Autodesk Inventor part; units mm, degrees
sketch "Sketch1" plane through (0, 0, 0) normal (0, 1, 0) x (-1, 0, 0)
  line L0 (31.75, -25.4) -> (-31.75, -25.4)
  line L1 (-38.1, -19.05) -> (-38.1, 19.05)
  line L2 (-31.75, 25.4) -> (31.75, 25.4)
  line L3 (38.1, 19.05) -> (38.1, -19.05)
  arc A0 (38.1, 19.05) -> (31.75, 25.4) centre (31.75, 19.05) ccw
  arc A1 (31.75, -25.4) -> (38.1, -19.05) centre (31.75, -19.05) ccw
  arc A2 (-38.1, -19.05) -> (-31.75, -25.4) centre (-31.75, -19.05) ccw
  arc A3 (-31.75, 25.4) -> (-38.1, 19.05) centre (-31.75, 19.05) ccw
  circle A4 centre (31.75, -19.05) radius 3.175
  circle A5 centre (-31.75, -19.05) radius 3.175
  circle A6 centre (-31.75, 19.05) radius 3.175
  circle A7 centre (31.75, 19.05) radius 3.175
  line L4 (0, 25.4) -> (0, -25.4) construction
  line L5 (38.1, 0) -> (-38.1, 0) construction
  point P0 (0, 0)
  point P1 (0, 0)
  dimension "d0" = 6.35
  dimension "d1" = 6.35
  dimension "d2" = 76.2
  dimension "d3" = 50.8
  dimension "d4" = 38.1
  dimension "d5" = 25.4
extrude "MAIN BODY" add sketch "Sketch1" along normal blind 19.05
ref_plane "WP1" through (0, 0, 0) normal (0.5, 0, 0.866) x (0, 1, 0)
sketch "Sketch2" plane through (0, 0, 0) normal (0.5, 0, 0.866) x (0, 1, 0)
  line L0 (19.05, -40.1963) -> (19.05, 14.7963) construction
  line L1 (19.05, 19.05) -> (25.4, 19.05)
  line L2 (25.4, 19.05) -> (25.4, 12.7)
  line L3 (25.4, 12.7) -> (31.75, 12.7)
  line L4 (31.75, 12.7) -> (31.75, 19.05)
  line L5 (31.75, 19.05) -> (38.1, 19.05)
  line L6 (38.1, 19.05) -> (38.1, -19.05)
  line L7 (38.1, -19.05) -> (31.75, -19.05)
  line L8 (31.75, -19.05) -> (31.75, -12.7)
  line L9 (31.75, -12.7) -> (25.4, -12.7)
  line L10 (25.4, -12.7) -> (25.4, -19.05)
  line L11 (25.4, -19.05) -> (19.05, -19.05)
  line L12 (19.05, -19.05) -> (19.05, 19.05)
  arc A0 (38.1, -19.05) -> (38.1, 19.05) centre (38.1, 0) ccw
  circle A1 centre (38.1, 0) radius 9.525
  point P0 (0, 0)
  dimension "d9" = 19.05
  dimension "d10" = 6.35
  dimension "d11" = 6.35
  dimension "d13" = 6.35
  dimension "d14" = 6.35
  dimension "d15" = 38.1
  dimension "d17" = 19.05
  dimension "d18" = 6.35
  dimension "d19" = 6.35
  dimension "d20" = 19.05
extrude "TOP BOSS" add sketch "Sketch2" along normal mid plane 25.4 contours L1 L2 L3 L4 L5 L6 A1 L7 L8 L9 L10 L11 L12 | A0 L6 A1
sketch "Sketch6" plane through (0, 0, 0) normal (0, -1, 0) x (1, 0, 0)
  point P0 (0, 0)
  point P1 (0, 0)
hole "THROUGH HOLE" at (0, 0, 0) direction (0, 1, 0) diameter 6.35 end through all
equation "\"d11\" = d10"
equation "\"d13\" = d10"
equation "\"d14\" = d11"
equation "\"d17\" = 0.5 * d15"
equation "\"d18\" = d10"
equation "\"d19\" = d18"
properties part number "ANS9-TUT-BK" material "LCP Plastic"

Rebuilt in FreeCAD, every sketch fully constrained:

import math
import FreeCAD as App
import Part
import Sketcher
Q = App.Units.Quantity

doc = App.newDocument("Part")
params = doc.addObject("Spreadsheet::Sheet", "Params")
for row, (alias, value) in enumerate([
    ("sketch1_diameter", "0.25 in"),
    ("sketch1_radius", "0.25 in"),
    ("sketch1_height", "1.5 in"),
    ("pad1_length", "0.75 in"),
    ("sketch2_diameter", "0.75 in"),
    ("sketch2_radius", "0.75 in"),
    ("sketch2_width", "0.25 in"),
    ("pad2_length", "1 in"),
    ("sketch3_diameter", "0.25 in"),
    ("hole_diameter", "0.25 in"),
], start=1):
    params.set(f"A{row}", alias)
    params.set(f"B{row}", "=" + value)
    params.setAlias(f"B{row}", alias)

body = doc.addObject("PartDesign::Body", "Body")

sketch1 = doc.addObject("Sketcher::SketchObject", "Sketch")
body.addObject(sketch1)
sketch1.AttachmentSupport = (doc.XZ_Plane, [""])
sketch1.MapMode = "FlatFace"
sketch1.addGeometry(Part.LineSegment(App.Vector(31.75, -25.4, 0), App.Vector(-31.75, -25.4, 0)), False)
sketch1.addGeometry(Part.ArcOfCircle(Part.Circle(App.Vector(-31.75, -19.05, 0), App.Vector(0, 0, 1), 6.35), math.radians(180), math.radians(270)), False)
sketch1.addGeometry(Part.LineSegment(App.Vector(-38.1, -19.05, 0), App.Vector(-38.1, 19.05, 0)), False)
sketch1.addGeometry(Part.ArcOfCircle(Part.Circle(App.Vector(-31.75, 19.05, 0), App.Vector(0, 0, 1), 6.35), math.radians(90), math.radians(180)), False)
sketch1.addGeometry(Part.LineSegment(App.Vector(-31.75, 25.4, 0), App.Vector(31.75, 25.4, 0)), False)
sketch1.addGeometry(Part.ArcOfCircle(Part.Circle(App.Vector(31.75, 19.05, 0), App.Vector(0, 0, 1), 6.35), math.radians(0), math.radians(90)), False)
sketch1.addGeometry(Part.LineSegment(App.Vector(38.1, 19.05, 0), App.Vector(38.1, -19.05, 0)), False)
sketch1.addGeometry(Part.ArcOfCircle(Part.Circle(App.Vector(31.75, -19.05, 0), App.Vector(0, 0, 1), 6.35), math.radians(-90), math.radians(0)), False)
sketch1.addGeometry(Part.Circle(App.Vector(31.75, -19.05, 0), App.Vector(0, 0, 1), 3.175), False)
sketch1.addGeometry(Part.Circle(App.Vector(-31.75, -19.05, 0), App.Vector(0, 0, 1), 3.175), False)
sketch1.addGeometry(Part.Circle(App.Vector(31.75, 19.05, 0), App.Vector(0, 0, 1), 3.175), False)
sketch1.addGeometry(Part.Circle(App.Vector(-31.75, 19.05, 0), App.Vector(0, 0, 1), 3.175), False)
sketch1.addConstraint(Sketcher.Constraint("Tangent", 0, 2, 1, 2))
sketch1.addConstraint(Sketcher.Constraint("Tangent", 1, 1, 2, 1))
sketch1.addConstraint(Sketcher.Constraint("Tangent", 2, 2, 3, 2))
sketch1.addConstraint(Sketcher.Constraint("Tangent", 3, 1, 4, 1))
sketch1.addConstraint(Sketcher.Constraint("Tangent", 4, 2, 5, 2))
sketch1.addConstraint(Sketcher.Constraint("Tangent", 5, 1, 6, 1))
sketch1.addConstraint(Sketcher.Constraint("Tangent", 6, 2, 7, 2))
sketch1.addConstraint(Sketcher.Constraint("Tangent", 7, 1, 0, 1))
sketch1.addConstraint(Sketcher.Constraint("Horizontal", 0))
sketch1.addConstraint(Sketcher.Constraint("Vertical", 2))
sketch1.addConstraint(Sketcher.Constraint("Horizontal", 4))
sketch1.addConstraint(Sketcher.Constraint("Vertical", 6))
sketch1.addConstraint(Sketcher.Constraint("Coincident", 8, 3, 7, 3))
sketch1.addConstraint(Sketcher.Constraint("Coincident", 9, 3, 1, 3))
sketch1.addConstraint(Sketcher.Constraint("Coincident", 10, 3, 5, 3))
sketch1.addConstraint(Sketcher.Constraint("Coincident", 11, 3, 3, 3))
sketch1.addConstraint(Sketcher.Constraint("Equal", 1, 3))
sketch1.addConstraint(Sketcher.Constraint("Equal", 3, 5))
sketch1.addConstraint(Sketcher.Constraint("Equal", 5, 7))
sketch1.addConstraint(Sketcher.Constraint("Equal", 8, 9))
sketch1.addConstraint(Sketcher.Constraint("Equal", 9, 10))
sketch1.addConstraint(Sketcher.Constraint("Equal", 10, 11))
sketch1.addConstraint(Sketcher.Constraint("Symmetric", 1, 3, 5, 3, -1, 1))
sketch1.addConstraint(Sketcher.Constraint("Diameter", 8, Q("0.25 in")))
sketch1.addConstraint(Sketcher.Constraint("Radius", 1, Q("0.25 in")))
sketch1.addConstraint(Sketcher.Constraint("DistanceY", 2, 1, 2, 2, Q("1.5 in")))
sketch1.addConstraint(Sketcher.Constraint("DistanceX", 1, 1, -1, 1, Q("1.5 in")))
sketch1.setExpression("Constraints[23]", "Params.sketch1_diameter")
sketch1.setExpression("Constraints[24]", "Params.sketch1_radius")
sketch1.setExpression("Constraints[25]", "Params.sketch1_height")
pad1 = doc.addObject("PartDesign::Pad", "Pad")
body.addObject(pad1)
pad1.Profile = sketch1
pad1.setExpression("Length", "Params.pad1_length")
pad1.Reversed = True

sketch2 = doc.addObject("Sketcher::SketchObject", "Sketch001")
body.addObject(sketch2)
sketch2.Placement = App.Placement(App.Vector(0, 0, 0), App.Rotation(App.Vector(0, 1, 0), App.Vector(-0.866025404, 0, 0.5), App.Vector(0.5, 0, 0.866025404), "ZXY"))
sketch2.addGeometry(Part.LineSegment(App.Vector(25.4, 19.05, 0), App.Vector(19.05, 19.05, 0)), False)
sketch2.addGeometry(Part.LineSegment(App.Vector(19.05, 19.05, 0), App.Vector(19.05, -19.05, 0)), False)
sketch2.addGeometry(Part.LineSegment(App.Vector(19.05, -19.05, 0), App.Vector(25.4, -19.05, 0)), False)
sketch2.addGeometry(Part.LineSegment(App.Vector(25.4, -19.05, 0), App.Vector(25.4, -12.7, 0)), False)
sketch2.addGeometry(Part.LineSegment(App.Vector(25.4, -12.7, 0), App.Vector(31.75, -12.7, 0)), False)
sketch2.addGeometry(Part.LineSegment(App.Vector(31.75, -12.7, 0), App.Vector(31.75, -19.05, 0)), False)
sketch2.addGeometry(Part.LineSegment(App.Vector(31.75, -19.05, 0), App.Vector(38.1, -19.05, 0)), False)
sketch2.addGeometry(Part.ArcOfCircle(Part.Circle(App.Vector(38.1, 0, 0), App.Vector(0, 0, 1), 19.05), math.radians(-90), math.radians(90)), False)
sketch2.addGeometry(Part.LineSegment(App.Vector(38.1, 19.05, 0), App.Vector(31.75, 19.05, 0)), False)
sketch2.addGeometry(Part.LineSegment(App.Vector(31.75, 19.05, 0), App.Vector(31.75, 12.7, 0)), False)
sketch2.addGeometry(Part.LineSegment(App.Vector(31.75, 12.7, 0), App.Vector(25.4, 12.7, 0)), False)
sketch2.addGeometry(Part.LineSegment(App.Vector(25.4, 12.7, 0), App.Vector(25.4, 19.05, 0)), False)
sketch2.addGeometry(Part.Circle(App.Vector(38.1, 0, 0), App.Vector(0, 0, 1), 9.525), False)
sketch2.addConstraint(Sketcher.Constraint("Coincident", 0, 2, 1, 1))
sketch2.addConstraint(Sketcher.Constraint("Coincident", 1, 2, 2, 1))
sketch2.addConstraint(Sketcher.Constraint("Coincident", 2, 2, 3, 1))
sketch2.addConstraint(Sketcher.Constraint("Coincident", 3, 2, 4, 1))
sketch2.addConstraint(Sketcher.Constraint("Coincident", 4, 2, 5, 1))
sketch2.addConstraint(Sketcher.Constraint("Coincident", 5, 2, 6, 1))
sketch2.addConstraint(Sketcher.Constraint("Tangent", 6, 2, 7, 1))
sketch2.addConstraint(Sketcher.Constraint("Tangent", 7, 2, 8, 1))
sketch2.addConstraint(Sketcher.Constraint("Coincident", 8, 2, 9, 1))
sketch2.addConstraint(Sketcher.Constraint("Coincident", 9, 2, 10, 1))
sketch2.addConstraint(Sketcher.Constraint("Coincident", 10, 2, 11, 1))
sketch2.addConstraint(Sketcher.Constraint("Coincident", 11, 2, 0, 1))
sketch2.addConstraint(Sketcher.Constraint("Horizontal", 0))
sketch2.addConstraint(Sketcher.Constraint("Vertical", 1))
sketch2.addConstraint(Sketcher.Constraint("Horizontal", 2))
sketch2.addConstraint(Sketcher.Constraint("Vertical", 3))
sketch2.addConstraint(Sketcher.Constraint("Horizontal", 4))
sketch2.addConstraint(Sketcher.Constraint("Vertical", 5))
sketch2.addConstraint(Sketcher.Constraint("Horizontal", 6))
sketch2.addConstraint(Sketcher.Constraint("Horizontal", 8))
sketch2.addConstraint(Sketcher.Constraint("Vertical", 9))
sketch2.addConstraint(Sketcher.Constraint("Horizontal", 10))
sketch2.addConstraint(Sketcher.Constraint("Vertical", 11))
sketch2.addConstraint(Sketcher.Constraint("Coincident", 12, 3, 7, 3))
sketch2.addConstraint(Sketcher.Constraint("Symmetric", 5, 2, 8, 2, -1))
sketch2.addConstraint(Sketcher.Constraint("Symmetric", 3, 2, 10, 2, -1))
sketch2.addConstraint(Sketcher.Constraint("Horizontal", 2, 2, 5, 2))
sketch2.addConstraint(Sketcher.Constraint("Horizontal", 0, 2, 7, 2))
sketch2.addConstraint(Sketcher.Constraint("Equal", 2, 4))
sketch2.addConstraint(Sketcher.Constraint("Equal", 4, 6))
sketch2.addConstraint(Sketcher.Constraint("Equal", 10, 3))
sketch2.addConstraint(Sketcher.Constraint("Diameter", 12, Q("0.75 in")))
sketch2.addConstraint(Sketcher.Constraint("Radius", 7, Q("0.75 in")))
sketch2.addConstraint(Sketcher.Constraint("DistanceX", 0, 2, 0, 1, Q("0.25 in")))
sketch2.addConstraint(Sketcher.Constraint("DistanceX", -1, 1, 7, 3, Q("1.5 in")))
sketch2.setExpression("Constraints[31]", "Params.sketch2_diameter")
sketch2.setExpression("Constraints[32]", "Params.sketch2_radius")
sketch2.setExpression("Constraints[33]", "Params.sketch2_width")
pad2 = doc.addObject("PartDesign::Pad", "Pad001")
body.addObject(pad2)
pad2.Profile = sketch2
pad2.setExpression("Length", "Params.pad2_length")
pad2.Midplane = True

sketch3 = doc.addObject("Sketcher::SketchObject", "Sketch002")
body.addObject(sketch3)
sketch3.AttachmentSupport = (doc.XZ_Plane, [""])
sketch3.MapMode = "FlatFace"
sketch3.addGeometry(Part.Circle(App.Vector(0, 0, 0), App.Vector(0, 0, 1), 3.175), False)
sketch3.addConstraint(Sketcher.Constraint("Coincident", 0, 3, -1, 1))
sketch3.addConstraint(Sketcher.Constraint("Diameter", 0, Q("0.25 in")))
sketch3.setExpression("Constraints[1]", "Params.sketch3_diameter")
doc.recompute()
hole = doc.addObject("PartDesign::Hole", "Hole")
body.addObject(hole)
hole.Profile = sketch3
hole.ThreadType = "None"
hole.setExpression("Diameter", "Params.hole_diameter")
hole.DepthType = "ThroughAll"

doc.recompute()
